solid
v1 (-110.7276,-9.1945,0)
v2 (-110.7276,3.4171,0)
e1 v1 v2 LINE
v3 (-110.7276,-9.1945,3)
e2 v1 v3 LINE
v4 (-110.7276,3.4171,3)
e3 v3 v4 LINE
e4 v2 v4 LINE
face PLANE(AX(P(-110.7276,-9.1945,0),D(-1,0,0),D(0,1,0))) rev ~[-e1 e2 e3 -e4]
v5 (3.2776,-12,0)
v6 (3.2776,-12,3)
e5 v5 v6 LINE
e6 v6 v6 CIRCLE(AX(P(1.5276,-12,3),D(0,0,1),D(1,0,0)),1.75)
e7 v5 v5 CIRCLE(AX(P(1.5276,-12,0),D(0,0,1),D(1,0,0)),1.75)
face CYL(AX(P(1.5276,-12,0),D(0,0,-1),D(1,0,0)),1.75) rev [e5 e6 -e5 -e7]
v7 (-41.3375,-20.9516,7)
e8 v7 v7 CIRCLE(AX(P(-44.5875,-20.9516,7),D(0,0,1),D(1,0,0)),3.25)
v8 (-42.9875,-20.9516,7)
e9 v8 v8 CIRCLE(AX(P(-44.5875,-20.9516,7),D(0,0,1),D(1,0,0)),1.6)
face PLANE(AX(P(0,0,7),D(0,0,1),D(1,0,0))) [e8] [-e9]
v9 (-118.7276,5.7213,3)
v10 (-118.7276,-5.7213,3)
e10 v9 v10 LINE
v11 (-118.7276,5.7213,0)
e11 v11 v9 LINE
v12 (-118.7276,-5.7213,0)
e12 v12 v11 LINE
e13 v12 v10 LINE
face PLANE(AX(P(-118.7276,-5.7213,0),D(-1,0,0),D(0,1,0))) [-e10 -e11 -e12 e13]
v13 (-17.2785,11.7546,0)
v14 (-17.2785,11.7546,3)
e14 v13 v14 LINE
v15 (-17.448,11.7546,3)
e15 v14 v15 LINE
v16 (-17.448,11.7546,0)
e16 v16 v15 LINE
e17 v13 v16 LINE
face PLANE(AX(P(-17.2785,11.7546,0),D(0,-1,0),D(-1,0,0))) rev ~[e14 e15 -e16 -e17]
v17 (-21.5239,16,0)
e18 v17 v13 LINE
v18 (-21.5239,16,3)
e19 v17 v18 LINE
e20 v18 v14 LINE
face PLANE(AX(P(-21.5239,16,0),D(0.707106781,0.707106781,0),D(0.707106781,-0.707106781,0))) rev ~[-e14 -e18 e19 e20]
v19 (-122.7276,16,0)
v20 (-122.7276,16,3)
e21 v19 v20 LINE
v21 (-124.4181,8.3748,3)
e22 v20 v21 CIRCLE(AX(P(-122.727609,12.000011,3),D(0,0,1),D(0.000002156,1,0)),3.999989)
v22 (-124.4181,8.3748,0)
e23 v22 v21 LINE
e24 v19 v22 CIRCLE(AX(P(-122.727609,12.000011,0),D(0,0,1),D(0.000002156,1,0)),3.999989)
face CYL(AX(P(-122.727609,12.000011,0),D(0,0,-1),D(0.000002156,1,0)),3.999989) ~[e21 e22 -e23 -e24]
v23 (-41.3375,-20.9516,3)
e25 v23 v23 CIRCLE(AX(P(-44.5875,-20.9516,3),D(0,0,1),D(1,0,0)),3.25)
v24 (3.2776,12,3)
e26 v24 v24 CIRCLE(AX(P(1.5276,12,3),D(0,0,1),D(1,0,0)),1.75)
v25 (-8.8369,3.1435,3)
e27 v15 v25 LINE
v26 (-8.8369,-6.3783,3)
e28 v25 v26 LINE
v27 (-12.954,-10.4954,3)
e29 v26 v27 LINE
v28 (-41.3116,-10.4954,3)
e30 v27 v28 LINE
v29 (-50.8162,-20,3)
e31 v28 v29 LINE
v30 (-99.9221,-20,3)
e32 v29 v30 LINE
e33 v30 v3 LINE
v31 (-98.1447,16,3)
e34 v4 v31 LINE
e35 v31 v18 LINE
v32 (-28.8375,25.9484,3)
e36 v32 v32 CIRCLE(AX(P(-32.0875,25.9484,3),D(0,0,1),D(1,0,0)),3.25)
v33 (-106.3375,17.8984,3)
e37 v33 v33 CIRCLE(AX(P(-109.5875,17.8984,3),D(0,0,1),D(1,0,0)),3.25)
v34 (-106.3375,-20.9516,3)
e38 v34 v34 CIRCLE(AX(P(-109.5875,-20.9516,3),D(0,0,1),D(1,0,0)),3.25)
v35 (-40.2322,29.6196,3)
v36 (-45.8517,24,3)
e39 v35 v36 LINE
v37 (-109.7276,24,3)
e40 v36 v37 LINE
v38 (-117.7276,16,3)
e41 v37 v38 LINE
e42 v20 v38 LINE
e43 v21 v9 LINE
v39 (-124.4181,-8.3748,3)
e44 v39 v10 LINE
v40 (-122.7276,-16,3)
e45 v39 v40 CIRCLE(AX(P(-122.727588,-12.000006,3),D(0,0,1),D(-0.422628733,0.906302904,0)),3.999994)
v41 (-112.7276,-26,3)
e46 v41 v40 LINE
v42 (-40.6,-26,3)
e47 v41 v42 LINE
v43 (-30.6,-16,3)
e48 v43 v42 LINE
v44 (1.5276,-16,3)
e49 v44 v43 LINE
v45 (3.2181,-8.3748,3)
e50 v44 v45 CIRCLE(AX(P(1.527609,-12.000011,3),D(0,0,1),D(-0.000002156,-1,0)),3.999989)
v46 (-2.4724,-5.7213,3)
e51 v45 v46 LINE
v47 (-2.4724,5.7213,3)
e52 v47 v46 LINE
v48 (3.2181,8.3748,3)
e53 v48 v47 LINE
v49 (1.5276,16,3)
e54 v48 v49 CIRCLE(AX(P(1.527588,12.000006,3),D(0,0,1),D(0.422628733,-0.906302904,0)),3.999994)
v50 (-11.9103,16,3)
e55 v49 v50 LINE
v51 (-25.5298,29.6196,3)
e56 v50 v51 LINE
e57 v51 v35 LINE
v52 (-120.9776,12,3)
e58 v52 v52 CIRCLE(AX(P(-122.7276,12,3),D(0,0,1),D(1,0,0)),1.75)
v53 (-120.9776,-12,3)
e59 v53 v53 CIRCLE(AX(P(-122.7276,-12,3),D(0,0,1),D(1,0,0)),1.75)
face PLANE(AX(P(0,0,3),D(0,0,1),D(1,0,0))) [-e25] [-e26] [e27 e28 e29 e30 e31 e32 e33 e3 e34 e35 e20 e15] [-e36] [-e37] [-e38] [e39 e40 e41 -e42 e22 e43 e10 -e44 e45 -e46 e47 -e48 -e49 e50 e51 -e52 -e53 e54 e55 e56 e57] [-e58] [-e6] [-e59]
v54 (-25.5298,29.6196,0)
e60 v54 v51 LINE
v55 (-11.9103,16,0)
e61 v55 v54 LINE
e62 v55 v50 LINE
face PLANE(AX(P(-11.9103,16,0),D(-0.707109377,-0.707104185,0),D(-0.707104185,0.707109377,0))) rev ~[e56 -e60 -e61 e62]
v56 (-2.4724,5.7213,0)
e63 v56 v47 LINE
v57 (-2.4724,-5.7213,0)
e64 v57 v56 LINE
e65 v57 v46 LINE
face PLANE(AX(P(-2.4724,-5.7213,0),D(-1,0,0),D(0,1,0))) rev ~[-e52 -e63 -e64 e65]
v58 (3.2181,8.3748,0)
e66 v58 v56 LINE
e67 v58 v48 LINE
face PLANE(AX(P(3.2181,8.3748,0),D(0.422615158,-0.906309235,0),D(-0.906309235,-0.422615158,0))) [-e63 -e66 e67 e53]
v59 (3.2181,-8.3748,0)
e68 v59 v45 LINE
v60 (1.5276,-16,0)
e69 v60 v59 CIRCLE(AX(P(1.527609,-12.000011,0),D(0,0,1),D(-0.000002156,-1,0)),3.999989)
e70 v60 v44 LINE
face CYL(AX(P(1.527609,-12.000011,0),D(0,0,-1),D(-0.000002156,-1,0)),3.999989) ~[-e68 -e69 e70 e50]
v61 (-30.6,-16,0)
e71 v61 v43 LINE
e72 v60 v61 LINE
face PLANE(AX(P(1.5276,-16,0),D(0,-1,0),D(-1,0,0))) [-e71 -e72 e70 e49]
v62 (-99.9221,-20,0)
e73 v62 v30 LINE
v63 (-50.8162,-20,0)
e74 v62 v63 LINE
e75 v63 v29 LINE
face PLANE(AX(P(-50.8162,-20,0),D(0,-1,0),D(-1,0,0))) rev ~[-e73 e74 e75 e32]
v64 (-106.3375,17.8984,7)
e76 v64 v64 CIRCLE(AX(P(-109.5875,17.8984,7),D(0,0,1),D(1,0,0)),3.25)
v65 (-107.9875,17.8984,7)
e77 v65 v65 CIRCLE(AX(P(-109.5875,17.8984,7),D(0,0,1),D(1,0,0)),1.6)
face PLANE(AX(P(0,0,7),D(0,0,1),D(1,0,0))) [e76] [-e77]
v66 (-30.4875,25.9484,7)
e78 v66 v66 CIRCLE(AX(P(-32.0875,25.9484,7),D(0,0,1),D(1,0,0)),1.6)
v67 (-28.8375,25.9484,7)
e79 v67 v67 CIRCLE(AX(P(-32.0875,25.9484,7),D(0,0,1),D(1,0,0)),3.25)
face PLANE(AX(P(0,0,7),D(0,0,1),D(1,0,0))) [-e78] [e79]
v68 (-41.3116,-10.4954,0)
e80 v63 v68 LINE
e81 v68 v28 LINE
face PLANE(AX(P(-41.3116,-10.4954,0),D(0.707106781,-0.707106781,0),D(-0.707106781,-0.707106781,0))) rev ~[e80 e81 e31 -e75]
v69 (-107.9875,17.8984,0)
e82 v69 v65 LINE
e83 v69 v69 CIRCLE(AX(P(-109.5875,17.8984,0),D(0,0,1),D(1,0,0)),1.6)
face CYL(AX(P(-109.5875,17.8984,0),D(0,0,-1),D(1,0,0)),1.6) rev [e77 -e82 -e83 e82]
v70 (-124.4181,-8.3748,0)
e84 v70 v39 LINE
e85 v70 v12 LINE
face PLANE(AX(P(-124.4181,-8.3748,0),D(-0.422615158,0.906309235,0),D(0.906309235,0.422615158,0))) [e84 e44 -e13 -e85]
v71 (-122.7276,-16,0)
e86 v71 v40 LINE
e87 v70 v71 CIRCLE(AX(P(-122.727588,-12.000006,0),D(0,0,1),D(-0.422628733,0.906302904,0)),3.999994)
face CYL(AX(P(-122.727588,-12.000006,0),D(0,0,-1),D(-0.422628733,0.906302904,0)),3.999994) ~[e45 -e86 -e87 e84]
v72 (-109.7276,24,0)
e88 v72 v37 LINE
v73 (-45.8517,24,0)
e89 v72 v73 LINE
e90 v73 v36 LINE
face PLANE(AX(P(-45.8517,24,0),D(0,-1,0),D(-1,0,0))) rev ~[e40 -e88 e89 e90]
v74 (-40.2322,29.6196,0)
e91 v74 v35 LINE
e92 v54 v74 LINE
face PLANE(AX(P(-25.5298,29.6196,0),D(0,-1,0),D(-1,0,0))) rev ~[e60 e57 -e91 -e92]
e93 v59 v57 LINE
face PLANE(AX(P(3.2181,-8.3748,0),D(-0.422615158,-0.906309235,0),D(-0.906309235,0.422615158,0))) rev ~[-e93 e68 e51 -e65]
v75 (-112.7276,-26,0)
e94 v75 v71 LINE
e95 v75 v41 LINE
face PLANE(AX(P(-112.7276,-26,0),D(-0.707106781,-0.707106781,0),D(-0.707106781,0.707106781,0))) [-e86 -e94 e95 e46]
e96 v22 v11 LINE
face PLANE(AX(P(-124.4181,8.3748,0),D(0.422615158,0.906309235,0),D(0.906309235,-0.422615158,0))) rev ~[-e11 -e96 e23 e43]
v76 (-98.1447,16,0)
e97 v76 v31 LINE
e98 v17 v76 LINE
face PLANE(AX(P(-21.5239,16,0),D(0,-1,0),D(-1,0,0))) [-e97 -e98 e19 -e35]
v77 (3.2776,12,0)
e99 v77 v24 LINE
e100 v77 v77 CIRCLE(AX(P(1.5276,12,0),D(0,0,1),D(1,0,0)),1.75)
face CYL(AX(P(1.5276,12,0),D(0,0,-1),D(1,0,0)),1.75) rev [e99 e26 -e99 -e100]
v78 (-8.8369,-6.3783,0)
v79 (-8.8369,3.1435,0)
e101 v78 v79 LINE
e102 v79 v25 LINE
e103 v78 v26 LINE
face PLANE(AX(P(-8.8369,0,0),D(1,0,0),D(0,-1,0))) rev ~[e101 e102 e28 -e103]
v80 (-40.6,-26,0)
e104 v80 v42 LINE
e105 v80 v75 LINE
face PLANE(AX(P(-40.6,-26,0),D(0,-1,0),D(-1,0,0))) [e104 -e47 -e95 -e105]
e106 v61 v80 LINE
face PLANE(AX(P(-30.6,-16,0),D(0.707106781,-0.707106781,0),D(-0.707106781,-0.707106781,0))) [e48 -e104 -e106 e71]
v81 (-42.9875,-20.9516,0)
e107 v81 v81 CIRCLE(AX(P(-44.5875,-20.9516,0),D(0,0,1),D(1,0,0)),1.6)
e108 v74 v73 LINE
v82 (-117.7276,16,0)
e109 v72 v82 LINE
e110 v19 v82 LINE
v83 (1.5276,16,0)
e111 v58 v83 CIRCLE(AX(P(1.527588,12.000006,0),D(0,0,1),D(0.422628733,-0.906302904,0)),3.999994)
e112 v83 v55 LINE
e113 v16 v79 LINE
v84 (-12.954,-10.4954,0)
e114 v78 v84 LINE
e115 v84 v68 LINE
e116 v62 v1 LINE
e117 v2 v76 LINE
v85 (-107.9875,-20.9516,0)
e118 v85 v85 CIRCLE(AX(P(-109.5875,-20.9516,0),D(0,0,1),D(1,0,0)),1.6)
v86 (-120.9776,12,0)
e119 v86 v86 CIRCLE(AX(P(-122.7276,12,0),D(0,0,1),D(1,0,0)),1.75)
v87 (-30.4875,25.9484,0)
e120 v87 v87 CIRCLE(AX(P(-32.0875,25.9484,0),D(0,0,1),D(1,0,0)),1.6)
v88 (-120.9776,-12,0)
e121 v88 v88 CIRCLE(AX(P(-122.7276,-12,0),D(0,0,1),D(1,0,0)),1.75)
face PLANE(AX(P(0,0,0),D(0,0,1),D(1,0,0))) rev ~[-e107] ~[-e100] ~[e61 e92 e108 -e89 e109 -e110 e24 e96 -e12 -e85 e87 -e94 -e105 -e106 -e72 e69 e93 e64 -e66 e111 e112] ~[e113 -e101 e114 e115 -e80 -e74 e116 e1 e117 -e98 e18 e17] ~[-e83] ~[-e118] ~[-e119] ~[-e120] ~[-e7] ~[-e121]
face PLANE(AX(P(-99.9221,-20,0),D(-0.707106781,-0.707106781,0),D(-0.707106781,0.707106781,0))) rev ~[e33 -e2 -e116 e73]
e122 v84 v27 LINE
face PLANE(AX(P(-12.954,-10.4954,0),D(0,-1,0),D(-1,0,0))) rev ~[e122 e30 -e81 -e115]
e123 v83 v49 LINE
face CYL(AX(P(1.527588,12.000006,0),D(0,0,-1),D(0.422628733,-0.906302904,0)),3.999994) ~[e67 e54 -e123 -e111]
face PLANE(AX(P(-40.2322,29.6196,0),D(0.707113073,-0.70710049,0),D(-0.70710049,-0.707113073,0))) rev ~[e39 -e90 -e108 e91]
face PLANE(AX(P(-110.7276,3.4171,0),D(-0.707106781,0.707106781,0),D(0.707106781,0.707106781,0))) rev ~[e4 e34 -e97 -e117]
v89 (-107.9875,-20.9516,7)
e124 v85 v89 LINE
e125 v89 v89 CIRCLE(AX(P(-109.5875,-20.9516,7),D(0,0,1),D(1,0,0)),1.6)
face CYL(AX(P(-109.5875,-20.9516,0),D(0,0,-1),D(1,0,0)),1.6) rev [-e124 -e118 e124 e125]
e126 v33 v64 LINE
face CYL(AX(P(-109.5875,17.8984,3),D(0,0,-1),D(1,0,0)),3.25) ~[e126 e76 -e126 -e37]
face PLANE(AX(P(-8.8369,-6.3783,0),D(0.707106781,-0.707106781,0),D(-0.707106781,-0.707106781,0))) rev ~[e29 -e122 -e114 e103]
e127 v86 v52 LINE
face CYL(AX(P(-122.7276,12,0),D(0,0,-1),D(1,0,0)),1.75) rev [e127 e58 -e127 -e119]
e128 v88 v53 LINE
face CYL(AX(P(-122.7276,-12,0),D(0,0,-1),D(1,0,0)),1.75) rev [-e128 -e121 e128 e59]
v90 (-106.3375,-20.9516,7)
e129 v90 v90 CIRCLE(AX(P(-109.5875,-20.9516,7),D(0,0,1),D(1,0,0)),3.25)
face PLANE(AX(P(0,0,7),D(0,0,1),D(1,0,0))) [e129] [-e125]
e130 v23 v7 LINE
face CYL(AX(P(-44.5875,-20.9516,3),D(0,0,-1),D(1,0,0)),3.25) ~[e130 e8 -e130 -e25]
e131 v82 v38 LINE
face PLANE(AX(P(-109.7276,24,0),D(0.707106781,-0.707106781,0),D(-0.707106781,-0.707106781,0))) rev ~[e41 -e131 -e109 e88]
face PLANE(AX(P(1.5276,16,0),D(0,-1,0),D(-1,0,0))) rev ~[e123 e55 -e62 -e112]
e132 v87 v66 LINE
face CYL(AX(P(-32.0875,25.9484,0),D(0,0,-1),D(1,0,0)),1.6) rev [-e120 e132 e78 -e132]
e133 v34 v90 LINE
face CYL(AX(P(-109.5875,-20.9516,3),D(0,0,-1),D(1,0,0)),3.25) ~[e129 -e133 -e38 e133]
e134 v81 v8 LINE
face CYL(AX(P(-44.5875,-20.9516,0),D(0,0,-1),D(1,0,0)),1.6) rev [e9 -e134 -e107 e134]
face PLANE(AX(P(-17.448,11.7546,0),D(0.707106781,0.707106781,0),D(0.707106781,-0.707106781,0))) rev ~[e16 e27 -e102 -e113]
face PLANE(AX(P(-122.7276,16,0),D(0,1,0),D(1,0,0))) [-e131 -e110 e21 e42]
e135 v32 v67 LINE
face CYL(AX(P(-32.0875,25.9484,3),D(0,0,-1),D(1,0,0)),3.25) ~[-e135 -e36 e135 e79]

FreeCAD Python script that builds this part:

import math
import FreeCAD as App
import Part
import Sketcher
Q = App.Units.Quantity


def add_polygon(sketch, points):
    """Adds a closed chain of lines whose ends are joined by coincident constraints."""
    first, n = sketch.GeometryCount, len(points)
    for a, b in zip(points, points[1:] + points[:1]):
        sketch.addGeometry(Part.LineSegment(App.Vector(*a, 0), App.Vector(*b, 0)), False)
    for i in range(n):
        sketch.addConstraint(Sketcher.Constraint("Coincident", first + i, 2, first + (i + 1) % n, 1))

doc = App.newDocument("Part")
body = doc.addObject("PartDesign::Body", "Body")

# Sketch on XY plane
sketch1 = body.newObject("Sketcher::SketchObject", "Sketch")
sketch1.AttachmentSupport = (doc.getObject("XY_Plane"), [""])
sketch1.MapMode = "FlatFace"
sketch1.addGeometry(Part.LineSegment(App.Vector(-2.4724, -5.7213, 0), App.Vector(-2.4724, 5.7213, 0)), False)  # 0
sketch1.addGeometry(Part.LineSegment(App.Vector(-2.4724, 5.7213, 0), App.Vector(3.2181, 8.3748, 0)), False)  # 1
sketch1.addGeometry(Part.ArcOfCircle(Part.Circle(App.Vector(1.5276, 12, 0), App.Vector(0, 0, 1), 3.999983), math.radians(-64.999462), math.radians(90)), False)  # 2
sketch1.addGeometry(Part.LineSegment(App.Vector(1.5276, 16, 0), App.Vector(-11.9103, 16, 0)), False)  # 3
sketch1.addGeometry(Part.LineSegment(App.Vector(-11.9103, 16, 0), App.Vector(-25.5298, 29.6196, 0)), False)  # 4
sketch1.addGeometry(Part.LineSegment(App.Vector(-25.5298, 29.6196, 0), App.Vector(-40.2322, 29.6196, 0)), False)  # 5
sketch1.addGeometry(Part.LineSegment(App.Vector(-40.2322, 29.6196, 0), App.Vector(-45.8517, 24, 0)), False)  # 6
sketch1.addGeometry(Part.LineSegment(App.Vector(-45.8517, 24, 0), App.Vector(-109.7276, 24, 0)), False)  # 7
sketch1.addGeometry(Part.LineSegment(App.Vector(-109.7276, 24, 0), App.Vector(-117.7276, 16, 0)), False)  # 8
sketch1.addGeometry(Part.LineSegment(App.Vector(-117.7276, 16, 0), App.Vector(-122.7276, 16, 0)), False)  # 9
sketch1.addGeometry(Part.ArcOfCircle(Part.Circle(App.Vector(-122.7276, 12, 0), App.Vector(0, 0, 1), 4), math.radians(90), math.radians(244.999462)), False)  # 10
sketch1.addGeometry(Part.LineSegment(App.Vector(-124.4181, 8.3748, 0), App.Vector(-118.7276, 5.7213, 0)), False)  # 11
sketch1.addGeometry(Part.LineSegment(App.Vector(-118.7276, 5.7213, 0), App.Vector(-118.7276, -5.7213, 0)), False)  # 12
sketch1.addGeometry(Part.LineSegment(App.Vector(-118.7276, -5.7213, 0), App.Vector(-124.4181, -8.3748, 0)), False)  # 13
sketch1.addGeometry(Part.ArcOfCircle(Part.Circle(App.Vector(-122.7276, -12, 0), App.Vector(0, 0, 1), 3.999983), math.radians(115.000538), math.radians(270)), False)  # 14
sketch1.addGeometry(Part.LineSegment(App.Vector(-122.7276, -16, 0), App.Vector(-112.7276, -26, 0)), False)  # 15
sketch1.addGeometry(Part.LineSegment(App.Vector(-112.7276, -26, 0), App.Vector(-40.6, -26, 0)), False)  # 16
sketch1.addGeometry(Part.LineSegment(App.Vector(-40.6, -26, 0), App.Vector(-30.6, -16, 0)), False)  # 17
sketch1.addGeometry(Part.LineSegment(App.Vector(-30.6, -16, 0), App.Vector(1.5276, -16, 0)), False)  # 18
sketch1.addGeometry(Part.ArcOfCircle(Part.Circle(App.Vector(1.5276, -12, 0), App.Vector(0, 0, 1), 4), math.radians(-90), math.radians(64.999462)), False)  # 19
sketch1.addGeometry(Part.LineSegment(App.Vector(3.2181, -8.3748, 0), App.Vector(-2.4724, -5.7213, 0)), False)  # 20
add_polygon(sketch1, [(-41.3116, -10.4954), (-50.8162, -20), (-99.9221, -20), (-110.7276, -9.1945), (-110.7276, 3.4171), (-98.1447, 16), (-21.5239, 16), (-17.2785, 11.7546), (-17.448, 11.7546), (-8.8369, 3.1435), (-8.8369, -6.3783), (-12.954, -10.4954)])  # lines 21-32
sketch1.addGeometry(Part.Circle(App.Vector(1.5276, -12, 0), App.Vector(0, 0, 1), 1.75), False)  # 33
sketch1.addGeometry(Part.Circle(App.Vector(-44.5875, -20.9516, 0), App.Vector(0, 0, 1), 1.6), False)  # 34
sketch1.addGeometry(Part.Circle(App.Vector(1.5276, 12, 0), App.Vector(0, 0, 1), 1.75), False)  # 35
sketch1.addGeometry(Part.Circle(App.Vector(-109.5875, 17.8984, 0), App.Vector(0, 0, 1), 1.6), False)  # 36
sketch1.addGeometry(Part.Circle(App.Vector(-109.5875, -20.9516, 0), App.Vector(0, 0, 1), 1.6), False)  # 37
sketch1.addGeometry(Part.Circle(App.Vector(-122.7276, -12, 0), App.Vector(0, 0, 1), 1.75), False)  # 38
sketch1.addGeometry(Part.Circle(App.Vector(-122.7276, 12, 0), App.Vector(0, 0, 1), 1.75), False)  # 39
sketch1.addGeometry(Part.Circle(App.Vector(-32.0875, 25.9484, 0), App.Vector(0, 0, 1), 1.6), False)  # 40
sketch1.addConstraint([
    Sketcher.Constraint("Coincident", 0, 2, 1, 1),
    Sketcher.Constraint("Tangent", 1, 2, 2, 1),
    Sketcher.Constraint("Tangent", 2, 2, 3, 1),
    Sketcher.Constraint("Coincident", 3, 2, 4, 1),
    Sketcher.Constraint("Coincident", 4, 2, 5, 1),
    Sketcher.Constraint("Coincident", 5, 2, 6, 1),
    Sketcher.Constraint("Coincident", 6, 2, 7, 1),
    Sketcher.Constraint("Coincident", 7, 2, 8, 1),
    Sketcher.Constraint("Coincident", 8, 2, 9, 1),
    Sketcher.Constraint("Tangent", 9, 2, 10, 1),
    Sketcher.Constraint("Tangent", 10, 2, 11, 1),
    Sketcher.Constraint("Coincident", 11, 2, 12, 1),
    Sketcher.Constraint("Coincident", 12, 2, 13, 1),
    Sketcher.Constraint("Tangent", 13, 2, 14, 1),
    Sketcher.Constraint("Coincident", 14, 2, 15, 1),
    Sketcher.Constraint("Coincident", 15, 2, 16, 1),
    Sketcher.Constraint("Coincident", 16, 2, 17, 1),
    Sketcher.Constraint("Coincident", 17, 2, 18, 1),
    Sketcher.Constraint("Tangent", 18, 2, 19, 1),
    Sketcher.Constraint("Tangent", 19, 2, 20, 1),
    Sketcher.Constraint("Coincident", 20, 2, 0, 1),
    Sketcher.Constraint("Vertical", 0),
    Sketcher.Constraint("Horizontal", 3),
    Sketcher.Constraint("Horizontal", 5),
    Sketcher.Constraint("Horizontal", 7),
    Sketcher.Constraint("Horizontal", 9),
    Sketcher.Constraint("Vertical", 12),
    Sketcher.Constraint("Horizontal", 16),
    Sketcher.Constraint("Horizontal", 18),
    Sketcher.Constraint("Horizontal", 22),
    Sketcher.Constraint("Vertical", 24),
    Sketcher.Constraint("Horizontal", 26),
    Sketcher.Constraint("Horizontal", 28),
    Sketcher.Constraint("Vertical", 30),
    Sketcher.Constraint("Horizontal", 32),
    Sketcher.Constraint("Coincident", 33, 3, 19, 3),
    Sketcher.Constraint("Coincident", 35, 3, 2, 3),
    Sketcher.Constraint("Coincident", 38, 3, 14, 3),
    Sketcher.Constraint("Coincident", 39, 3, 10, 3),
    Sketcher.Constraint("Equal", 2, 10),
    Sketcher.Constraint("Equal", 10, 14),
    Sketcher.Constraint("Equal", 14, 19),
    Sketcher.Constraint("Equal", 33, 35),
    Sketcher.Constraint("Equal", 34, 36),
    Sketcher.Constraint("Equal", 36, 37),
    Sketcher.Constraint("Equal", 35, 38),
    Sketcher.Constraint("Equal", 38, 39),
    Sketcher.Constraint("Equal", 37, 40),
    Sketcher.Constraint("Symmetric", 10, 3, 14, 3, -1),
    Sketcher.Constraint("Symmetric", 2, 3, 19, 3, -1),
    Sketcher.Constraint("Perpendicular", 4, 6),
    Sketcher.Constraint("Parallel", 6, 8),
    Sketcher.Constraint("Parallel", 1, 13),
    Sketcher.Constraint("Perpendicular", 8, 15),
    Sketcher.Constraint("Perpendicular", 15, 17),
    Sketcher.Constraint("Parallel", 11, 20),
    Sketcher.Constraint("Parallel", 17, 21),
    Sketcher.Constraint("Perpendicular", 21, 23),
    Sketcher.Constraint("Perpendicular", 23, 25),
    Sketcher.Constraint("Perpendicular", 25, 27),
    Sketcher.Constraint("Parallel", 27, 29),
    Sketcher.Constraint("Perpendicular", 29, 31),
    Sketcher.Constraint("Horizontal", 2, 3, 10, 3),
    Sketcher.Constraint("Horizontal", 34, 3, 37, 3),
    Sketcher.Constraint("Horizontal", 1, 2, 10, 2),
    Sketcher.Constraint("Horizontal", 0, 2, 11, 2),
    Sketcher.Constraint("Horizontal", 9, 2, 25, 2),
    Sketcher.Constraint("Vertical", 36, 3, 37, 3),
    Sketcher.Constraint("Vertical", 9, 2, 14, 2),
    Sketcher.Constraint("Equal", 15, 17),
    Sketcher.Constraint("Radius", 2, 4.0),
    Sketcher.Constraint("Diameter", 33, 3.5),
    Sketcher.Constraint("Diameter", 34, 3.2),
    Sketcher.Constraint("DistanceX", 9, 2, 9, 1, 5.0),
    Sketcher.Constraint("Angle", 1, Q("24.9998 deg")),
    Sketcher.Constraint("DistanceY", -1, 1, 2, 3, 12.0),
    Sketcher.Constraint("DistanceY", -1, 1, 6, 2, 24.0),
    Sketcher.Constraint("DistanceY", 15, 2, -1, 1, 26.0),
    Sketcher.Constraint("DistanceY", 21, 2, -1, 1, 20.0),
    Sketcher.Constraint("DistanceX", 36, 3, 34, 3, 65.0),
    Sketcher.Constraint("DistanceX", 0, 2, 2, 3, 4.0),
    Sketcher.Constraint("DistanceX", 12, 2, 23, 2, 8.0),
    Sketcher.Constraint("DistanceX", 16, 2, -1, 1, 40.6),
    Sketcher.Constraint("DistanceX", 34, 3, 40, 3, 12.5),
    Sketcher.Constraint("DistanceY", 34, 3, 40, 3, 46.9),
    Sketcher.Constraint("DistanceX", 3, 2, 3, 1, 13.438),
    Sketcher.Constraint("DistanceX", 7, 2, 7, 1, 63.876),
    Sketcher.Constraint("DistanceX", 22, 2, 22, 1, 49.106),
    Sketcher.Constraint("DistanceX", 14, 3, 34, 3, 78.14),
    Sketcher.Constraint("DistanceY", 34, 3, 36, 3, 38.85),
    Sketcher.Constraint("Distance", 4, 19.261),
    Sketcher.Constraint("Distance", 25, 17.795),
    Sketcher.Constraint("Distance", 27, 6.004),
    Sketcher.Constraint("Distance", 29, 12.178),
    Sketcher.Constraint("DistanceX", 5, 2, 5, 1, 14.7024),
    Sketcher.Constraint("DistanceX", 16, 1, 16, 2, 72.1276),
    Sketcher.Constraint("DistanceX", 26, 1, 26, 2, 76.6208),
    Sketcher.Constraint("DistanceX", 28, 2, 28, 1, 0.1695),
    Sketcher.Constraint("DistanceX", 32, 2, 32, 1, 28.3576),
    Sketcher.Constraint("DistanceY", 24, 1, 24, 2, 12.6116),
    Sketcher.Constraint("DistanceX", 31, 2, -1, 1, 12.954),
    Sketcher.Constraint("DistanceY", 0, 2, 40, 3, 20.227),
])
pad1 = body.newObject("PartDesign::Pad", "Pad")
pad1.Profile = sketch1
pad1.Length = 3

# Sketch on XY plane
sketch2 = body.newObject("Sketcher::SketchObject", "Sketch001")
sketch2.AttachmentSupport = (doc.getObject("XY_Plane"), [""])
sketch2.MapMode = "FlatFace"
sketch2.AttachmentOffset = App.Placement(App.Vector(0, 0, 3), App.Rotation())
sketch2.addGeometry([
    Part.Circle(App.Vector(-109.5875, -20.9516, 0), App.Vector(0, 0, 1), 3.25),  # 0
    Part.Circle(App.Vector(-109.5875, -20.9516, 0), App.Vector(0, 0, 1), 1.6),  # 1
    Part.Circle(App.Vector(-109.5875, 17.8984, 0), App.Vector(0, 0, 1), 3.25),  # 2
    Part.Circle(App.Vector(-109.5875, 17.8984, 0), App.Vector(0, 0, 1), 1.6),  # 3
    Part.Circle(App.Vector(-32.0875, 25.9484, 0), App.Vector(0, 0, 1), 3.25),  # 4
    Part.Circle(App.Vector(-32.0875, 25.9484, 0), App.Vector(0, 0, 1), 1.6),  # 5
    Part.Circle(App.Vector(-44.5875, -20.9516, 0), App.Vector(0, 0, 1), 3.25),  # 6
    Part.Circle(App.Vector(-44.5875, -20.9516, 0), App.Vector(0, 0, 1), 1.6),  # 7
], False)
sketch2.addConstraint([
    Sketcher.Constraint("Coincident", 1, 3, 0, 3),
    Sketcher.Constraint("Coincident", 3, 3, 2, 3),
    Sketcher.Constraint("Coincident", 5, 3, 4, 3),
    Sketcher.Constraint("Coincident", 7, 3, 6, 3),
    Sketcher.Constraint("Equal", 0, 2),
    Sketcher.Constraint("Equal", 1, 3),
    Sketcher.Constraint("Equal", 2, 4),
    Sketcher.Constraint("Equal", 3, 5),
    Sketcher.Constraint("Equal", 4, 6),
    Sketcher.Constraint("Equal", 5, 7),
    Sketcher.Constraint("Horizontal", 1, 3, 6, 3),
    Sketcher.Constraint("Vertical", 1, 3, 2, 3),
    Sketcher.Constraint("Diameter", 0, 6.5),
    Sketcher.Constraint("Diameter", 1, 3.2),
    Sketcher.Constraint("DistanceX", 0, 3, 6, 3, 65.0),
    Sketcher.Constraint("DistanceX", 2, 3, 4, 3, 77.5),
    Sketcher.Constraint("DistanceY", 0, 3, 4, 3, 46.9),
    Sketcher.Constraint("DistanceY", 0, 3, 2, 3, 38.85),
    Sketcher.Constraint("DistanceX", 0, 3, -1, 1, 109.5875),
    Sketcher.Constraint("DistanceY", 0, 3, -1, 1, 20.9516),
])
pad2 = body.newObject("PartDesign::Pad", "Pad001")
pad2.Profile = sketch2
pad2.Length = 4

doc.recompute()
